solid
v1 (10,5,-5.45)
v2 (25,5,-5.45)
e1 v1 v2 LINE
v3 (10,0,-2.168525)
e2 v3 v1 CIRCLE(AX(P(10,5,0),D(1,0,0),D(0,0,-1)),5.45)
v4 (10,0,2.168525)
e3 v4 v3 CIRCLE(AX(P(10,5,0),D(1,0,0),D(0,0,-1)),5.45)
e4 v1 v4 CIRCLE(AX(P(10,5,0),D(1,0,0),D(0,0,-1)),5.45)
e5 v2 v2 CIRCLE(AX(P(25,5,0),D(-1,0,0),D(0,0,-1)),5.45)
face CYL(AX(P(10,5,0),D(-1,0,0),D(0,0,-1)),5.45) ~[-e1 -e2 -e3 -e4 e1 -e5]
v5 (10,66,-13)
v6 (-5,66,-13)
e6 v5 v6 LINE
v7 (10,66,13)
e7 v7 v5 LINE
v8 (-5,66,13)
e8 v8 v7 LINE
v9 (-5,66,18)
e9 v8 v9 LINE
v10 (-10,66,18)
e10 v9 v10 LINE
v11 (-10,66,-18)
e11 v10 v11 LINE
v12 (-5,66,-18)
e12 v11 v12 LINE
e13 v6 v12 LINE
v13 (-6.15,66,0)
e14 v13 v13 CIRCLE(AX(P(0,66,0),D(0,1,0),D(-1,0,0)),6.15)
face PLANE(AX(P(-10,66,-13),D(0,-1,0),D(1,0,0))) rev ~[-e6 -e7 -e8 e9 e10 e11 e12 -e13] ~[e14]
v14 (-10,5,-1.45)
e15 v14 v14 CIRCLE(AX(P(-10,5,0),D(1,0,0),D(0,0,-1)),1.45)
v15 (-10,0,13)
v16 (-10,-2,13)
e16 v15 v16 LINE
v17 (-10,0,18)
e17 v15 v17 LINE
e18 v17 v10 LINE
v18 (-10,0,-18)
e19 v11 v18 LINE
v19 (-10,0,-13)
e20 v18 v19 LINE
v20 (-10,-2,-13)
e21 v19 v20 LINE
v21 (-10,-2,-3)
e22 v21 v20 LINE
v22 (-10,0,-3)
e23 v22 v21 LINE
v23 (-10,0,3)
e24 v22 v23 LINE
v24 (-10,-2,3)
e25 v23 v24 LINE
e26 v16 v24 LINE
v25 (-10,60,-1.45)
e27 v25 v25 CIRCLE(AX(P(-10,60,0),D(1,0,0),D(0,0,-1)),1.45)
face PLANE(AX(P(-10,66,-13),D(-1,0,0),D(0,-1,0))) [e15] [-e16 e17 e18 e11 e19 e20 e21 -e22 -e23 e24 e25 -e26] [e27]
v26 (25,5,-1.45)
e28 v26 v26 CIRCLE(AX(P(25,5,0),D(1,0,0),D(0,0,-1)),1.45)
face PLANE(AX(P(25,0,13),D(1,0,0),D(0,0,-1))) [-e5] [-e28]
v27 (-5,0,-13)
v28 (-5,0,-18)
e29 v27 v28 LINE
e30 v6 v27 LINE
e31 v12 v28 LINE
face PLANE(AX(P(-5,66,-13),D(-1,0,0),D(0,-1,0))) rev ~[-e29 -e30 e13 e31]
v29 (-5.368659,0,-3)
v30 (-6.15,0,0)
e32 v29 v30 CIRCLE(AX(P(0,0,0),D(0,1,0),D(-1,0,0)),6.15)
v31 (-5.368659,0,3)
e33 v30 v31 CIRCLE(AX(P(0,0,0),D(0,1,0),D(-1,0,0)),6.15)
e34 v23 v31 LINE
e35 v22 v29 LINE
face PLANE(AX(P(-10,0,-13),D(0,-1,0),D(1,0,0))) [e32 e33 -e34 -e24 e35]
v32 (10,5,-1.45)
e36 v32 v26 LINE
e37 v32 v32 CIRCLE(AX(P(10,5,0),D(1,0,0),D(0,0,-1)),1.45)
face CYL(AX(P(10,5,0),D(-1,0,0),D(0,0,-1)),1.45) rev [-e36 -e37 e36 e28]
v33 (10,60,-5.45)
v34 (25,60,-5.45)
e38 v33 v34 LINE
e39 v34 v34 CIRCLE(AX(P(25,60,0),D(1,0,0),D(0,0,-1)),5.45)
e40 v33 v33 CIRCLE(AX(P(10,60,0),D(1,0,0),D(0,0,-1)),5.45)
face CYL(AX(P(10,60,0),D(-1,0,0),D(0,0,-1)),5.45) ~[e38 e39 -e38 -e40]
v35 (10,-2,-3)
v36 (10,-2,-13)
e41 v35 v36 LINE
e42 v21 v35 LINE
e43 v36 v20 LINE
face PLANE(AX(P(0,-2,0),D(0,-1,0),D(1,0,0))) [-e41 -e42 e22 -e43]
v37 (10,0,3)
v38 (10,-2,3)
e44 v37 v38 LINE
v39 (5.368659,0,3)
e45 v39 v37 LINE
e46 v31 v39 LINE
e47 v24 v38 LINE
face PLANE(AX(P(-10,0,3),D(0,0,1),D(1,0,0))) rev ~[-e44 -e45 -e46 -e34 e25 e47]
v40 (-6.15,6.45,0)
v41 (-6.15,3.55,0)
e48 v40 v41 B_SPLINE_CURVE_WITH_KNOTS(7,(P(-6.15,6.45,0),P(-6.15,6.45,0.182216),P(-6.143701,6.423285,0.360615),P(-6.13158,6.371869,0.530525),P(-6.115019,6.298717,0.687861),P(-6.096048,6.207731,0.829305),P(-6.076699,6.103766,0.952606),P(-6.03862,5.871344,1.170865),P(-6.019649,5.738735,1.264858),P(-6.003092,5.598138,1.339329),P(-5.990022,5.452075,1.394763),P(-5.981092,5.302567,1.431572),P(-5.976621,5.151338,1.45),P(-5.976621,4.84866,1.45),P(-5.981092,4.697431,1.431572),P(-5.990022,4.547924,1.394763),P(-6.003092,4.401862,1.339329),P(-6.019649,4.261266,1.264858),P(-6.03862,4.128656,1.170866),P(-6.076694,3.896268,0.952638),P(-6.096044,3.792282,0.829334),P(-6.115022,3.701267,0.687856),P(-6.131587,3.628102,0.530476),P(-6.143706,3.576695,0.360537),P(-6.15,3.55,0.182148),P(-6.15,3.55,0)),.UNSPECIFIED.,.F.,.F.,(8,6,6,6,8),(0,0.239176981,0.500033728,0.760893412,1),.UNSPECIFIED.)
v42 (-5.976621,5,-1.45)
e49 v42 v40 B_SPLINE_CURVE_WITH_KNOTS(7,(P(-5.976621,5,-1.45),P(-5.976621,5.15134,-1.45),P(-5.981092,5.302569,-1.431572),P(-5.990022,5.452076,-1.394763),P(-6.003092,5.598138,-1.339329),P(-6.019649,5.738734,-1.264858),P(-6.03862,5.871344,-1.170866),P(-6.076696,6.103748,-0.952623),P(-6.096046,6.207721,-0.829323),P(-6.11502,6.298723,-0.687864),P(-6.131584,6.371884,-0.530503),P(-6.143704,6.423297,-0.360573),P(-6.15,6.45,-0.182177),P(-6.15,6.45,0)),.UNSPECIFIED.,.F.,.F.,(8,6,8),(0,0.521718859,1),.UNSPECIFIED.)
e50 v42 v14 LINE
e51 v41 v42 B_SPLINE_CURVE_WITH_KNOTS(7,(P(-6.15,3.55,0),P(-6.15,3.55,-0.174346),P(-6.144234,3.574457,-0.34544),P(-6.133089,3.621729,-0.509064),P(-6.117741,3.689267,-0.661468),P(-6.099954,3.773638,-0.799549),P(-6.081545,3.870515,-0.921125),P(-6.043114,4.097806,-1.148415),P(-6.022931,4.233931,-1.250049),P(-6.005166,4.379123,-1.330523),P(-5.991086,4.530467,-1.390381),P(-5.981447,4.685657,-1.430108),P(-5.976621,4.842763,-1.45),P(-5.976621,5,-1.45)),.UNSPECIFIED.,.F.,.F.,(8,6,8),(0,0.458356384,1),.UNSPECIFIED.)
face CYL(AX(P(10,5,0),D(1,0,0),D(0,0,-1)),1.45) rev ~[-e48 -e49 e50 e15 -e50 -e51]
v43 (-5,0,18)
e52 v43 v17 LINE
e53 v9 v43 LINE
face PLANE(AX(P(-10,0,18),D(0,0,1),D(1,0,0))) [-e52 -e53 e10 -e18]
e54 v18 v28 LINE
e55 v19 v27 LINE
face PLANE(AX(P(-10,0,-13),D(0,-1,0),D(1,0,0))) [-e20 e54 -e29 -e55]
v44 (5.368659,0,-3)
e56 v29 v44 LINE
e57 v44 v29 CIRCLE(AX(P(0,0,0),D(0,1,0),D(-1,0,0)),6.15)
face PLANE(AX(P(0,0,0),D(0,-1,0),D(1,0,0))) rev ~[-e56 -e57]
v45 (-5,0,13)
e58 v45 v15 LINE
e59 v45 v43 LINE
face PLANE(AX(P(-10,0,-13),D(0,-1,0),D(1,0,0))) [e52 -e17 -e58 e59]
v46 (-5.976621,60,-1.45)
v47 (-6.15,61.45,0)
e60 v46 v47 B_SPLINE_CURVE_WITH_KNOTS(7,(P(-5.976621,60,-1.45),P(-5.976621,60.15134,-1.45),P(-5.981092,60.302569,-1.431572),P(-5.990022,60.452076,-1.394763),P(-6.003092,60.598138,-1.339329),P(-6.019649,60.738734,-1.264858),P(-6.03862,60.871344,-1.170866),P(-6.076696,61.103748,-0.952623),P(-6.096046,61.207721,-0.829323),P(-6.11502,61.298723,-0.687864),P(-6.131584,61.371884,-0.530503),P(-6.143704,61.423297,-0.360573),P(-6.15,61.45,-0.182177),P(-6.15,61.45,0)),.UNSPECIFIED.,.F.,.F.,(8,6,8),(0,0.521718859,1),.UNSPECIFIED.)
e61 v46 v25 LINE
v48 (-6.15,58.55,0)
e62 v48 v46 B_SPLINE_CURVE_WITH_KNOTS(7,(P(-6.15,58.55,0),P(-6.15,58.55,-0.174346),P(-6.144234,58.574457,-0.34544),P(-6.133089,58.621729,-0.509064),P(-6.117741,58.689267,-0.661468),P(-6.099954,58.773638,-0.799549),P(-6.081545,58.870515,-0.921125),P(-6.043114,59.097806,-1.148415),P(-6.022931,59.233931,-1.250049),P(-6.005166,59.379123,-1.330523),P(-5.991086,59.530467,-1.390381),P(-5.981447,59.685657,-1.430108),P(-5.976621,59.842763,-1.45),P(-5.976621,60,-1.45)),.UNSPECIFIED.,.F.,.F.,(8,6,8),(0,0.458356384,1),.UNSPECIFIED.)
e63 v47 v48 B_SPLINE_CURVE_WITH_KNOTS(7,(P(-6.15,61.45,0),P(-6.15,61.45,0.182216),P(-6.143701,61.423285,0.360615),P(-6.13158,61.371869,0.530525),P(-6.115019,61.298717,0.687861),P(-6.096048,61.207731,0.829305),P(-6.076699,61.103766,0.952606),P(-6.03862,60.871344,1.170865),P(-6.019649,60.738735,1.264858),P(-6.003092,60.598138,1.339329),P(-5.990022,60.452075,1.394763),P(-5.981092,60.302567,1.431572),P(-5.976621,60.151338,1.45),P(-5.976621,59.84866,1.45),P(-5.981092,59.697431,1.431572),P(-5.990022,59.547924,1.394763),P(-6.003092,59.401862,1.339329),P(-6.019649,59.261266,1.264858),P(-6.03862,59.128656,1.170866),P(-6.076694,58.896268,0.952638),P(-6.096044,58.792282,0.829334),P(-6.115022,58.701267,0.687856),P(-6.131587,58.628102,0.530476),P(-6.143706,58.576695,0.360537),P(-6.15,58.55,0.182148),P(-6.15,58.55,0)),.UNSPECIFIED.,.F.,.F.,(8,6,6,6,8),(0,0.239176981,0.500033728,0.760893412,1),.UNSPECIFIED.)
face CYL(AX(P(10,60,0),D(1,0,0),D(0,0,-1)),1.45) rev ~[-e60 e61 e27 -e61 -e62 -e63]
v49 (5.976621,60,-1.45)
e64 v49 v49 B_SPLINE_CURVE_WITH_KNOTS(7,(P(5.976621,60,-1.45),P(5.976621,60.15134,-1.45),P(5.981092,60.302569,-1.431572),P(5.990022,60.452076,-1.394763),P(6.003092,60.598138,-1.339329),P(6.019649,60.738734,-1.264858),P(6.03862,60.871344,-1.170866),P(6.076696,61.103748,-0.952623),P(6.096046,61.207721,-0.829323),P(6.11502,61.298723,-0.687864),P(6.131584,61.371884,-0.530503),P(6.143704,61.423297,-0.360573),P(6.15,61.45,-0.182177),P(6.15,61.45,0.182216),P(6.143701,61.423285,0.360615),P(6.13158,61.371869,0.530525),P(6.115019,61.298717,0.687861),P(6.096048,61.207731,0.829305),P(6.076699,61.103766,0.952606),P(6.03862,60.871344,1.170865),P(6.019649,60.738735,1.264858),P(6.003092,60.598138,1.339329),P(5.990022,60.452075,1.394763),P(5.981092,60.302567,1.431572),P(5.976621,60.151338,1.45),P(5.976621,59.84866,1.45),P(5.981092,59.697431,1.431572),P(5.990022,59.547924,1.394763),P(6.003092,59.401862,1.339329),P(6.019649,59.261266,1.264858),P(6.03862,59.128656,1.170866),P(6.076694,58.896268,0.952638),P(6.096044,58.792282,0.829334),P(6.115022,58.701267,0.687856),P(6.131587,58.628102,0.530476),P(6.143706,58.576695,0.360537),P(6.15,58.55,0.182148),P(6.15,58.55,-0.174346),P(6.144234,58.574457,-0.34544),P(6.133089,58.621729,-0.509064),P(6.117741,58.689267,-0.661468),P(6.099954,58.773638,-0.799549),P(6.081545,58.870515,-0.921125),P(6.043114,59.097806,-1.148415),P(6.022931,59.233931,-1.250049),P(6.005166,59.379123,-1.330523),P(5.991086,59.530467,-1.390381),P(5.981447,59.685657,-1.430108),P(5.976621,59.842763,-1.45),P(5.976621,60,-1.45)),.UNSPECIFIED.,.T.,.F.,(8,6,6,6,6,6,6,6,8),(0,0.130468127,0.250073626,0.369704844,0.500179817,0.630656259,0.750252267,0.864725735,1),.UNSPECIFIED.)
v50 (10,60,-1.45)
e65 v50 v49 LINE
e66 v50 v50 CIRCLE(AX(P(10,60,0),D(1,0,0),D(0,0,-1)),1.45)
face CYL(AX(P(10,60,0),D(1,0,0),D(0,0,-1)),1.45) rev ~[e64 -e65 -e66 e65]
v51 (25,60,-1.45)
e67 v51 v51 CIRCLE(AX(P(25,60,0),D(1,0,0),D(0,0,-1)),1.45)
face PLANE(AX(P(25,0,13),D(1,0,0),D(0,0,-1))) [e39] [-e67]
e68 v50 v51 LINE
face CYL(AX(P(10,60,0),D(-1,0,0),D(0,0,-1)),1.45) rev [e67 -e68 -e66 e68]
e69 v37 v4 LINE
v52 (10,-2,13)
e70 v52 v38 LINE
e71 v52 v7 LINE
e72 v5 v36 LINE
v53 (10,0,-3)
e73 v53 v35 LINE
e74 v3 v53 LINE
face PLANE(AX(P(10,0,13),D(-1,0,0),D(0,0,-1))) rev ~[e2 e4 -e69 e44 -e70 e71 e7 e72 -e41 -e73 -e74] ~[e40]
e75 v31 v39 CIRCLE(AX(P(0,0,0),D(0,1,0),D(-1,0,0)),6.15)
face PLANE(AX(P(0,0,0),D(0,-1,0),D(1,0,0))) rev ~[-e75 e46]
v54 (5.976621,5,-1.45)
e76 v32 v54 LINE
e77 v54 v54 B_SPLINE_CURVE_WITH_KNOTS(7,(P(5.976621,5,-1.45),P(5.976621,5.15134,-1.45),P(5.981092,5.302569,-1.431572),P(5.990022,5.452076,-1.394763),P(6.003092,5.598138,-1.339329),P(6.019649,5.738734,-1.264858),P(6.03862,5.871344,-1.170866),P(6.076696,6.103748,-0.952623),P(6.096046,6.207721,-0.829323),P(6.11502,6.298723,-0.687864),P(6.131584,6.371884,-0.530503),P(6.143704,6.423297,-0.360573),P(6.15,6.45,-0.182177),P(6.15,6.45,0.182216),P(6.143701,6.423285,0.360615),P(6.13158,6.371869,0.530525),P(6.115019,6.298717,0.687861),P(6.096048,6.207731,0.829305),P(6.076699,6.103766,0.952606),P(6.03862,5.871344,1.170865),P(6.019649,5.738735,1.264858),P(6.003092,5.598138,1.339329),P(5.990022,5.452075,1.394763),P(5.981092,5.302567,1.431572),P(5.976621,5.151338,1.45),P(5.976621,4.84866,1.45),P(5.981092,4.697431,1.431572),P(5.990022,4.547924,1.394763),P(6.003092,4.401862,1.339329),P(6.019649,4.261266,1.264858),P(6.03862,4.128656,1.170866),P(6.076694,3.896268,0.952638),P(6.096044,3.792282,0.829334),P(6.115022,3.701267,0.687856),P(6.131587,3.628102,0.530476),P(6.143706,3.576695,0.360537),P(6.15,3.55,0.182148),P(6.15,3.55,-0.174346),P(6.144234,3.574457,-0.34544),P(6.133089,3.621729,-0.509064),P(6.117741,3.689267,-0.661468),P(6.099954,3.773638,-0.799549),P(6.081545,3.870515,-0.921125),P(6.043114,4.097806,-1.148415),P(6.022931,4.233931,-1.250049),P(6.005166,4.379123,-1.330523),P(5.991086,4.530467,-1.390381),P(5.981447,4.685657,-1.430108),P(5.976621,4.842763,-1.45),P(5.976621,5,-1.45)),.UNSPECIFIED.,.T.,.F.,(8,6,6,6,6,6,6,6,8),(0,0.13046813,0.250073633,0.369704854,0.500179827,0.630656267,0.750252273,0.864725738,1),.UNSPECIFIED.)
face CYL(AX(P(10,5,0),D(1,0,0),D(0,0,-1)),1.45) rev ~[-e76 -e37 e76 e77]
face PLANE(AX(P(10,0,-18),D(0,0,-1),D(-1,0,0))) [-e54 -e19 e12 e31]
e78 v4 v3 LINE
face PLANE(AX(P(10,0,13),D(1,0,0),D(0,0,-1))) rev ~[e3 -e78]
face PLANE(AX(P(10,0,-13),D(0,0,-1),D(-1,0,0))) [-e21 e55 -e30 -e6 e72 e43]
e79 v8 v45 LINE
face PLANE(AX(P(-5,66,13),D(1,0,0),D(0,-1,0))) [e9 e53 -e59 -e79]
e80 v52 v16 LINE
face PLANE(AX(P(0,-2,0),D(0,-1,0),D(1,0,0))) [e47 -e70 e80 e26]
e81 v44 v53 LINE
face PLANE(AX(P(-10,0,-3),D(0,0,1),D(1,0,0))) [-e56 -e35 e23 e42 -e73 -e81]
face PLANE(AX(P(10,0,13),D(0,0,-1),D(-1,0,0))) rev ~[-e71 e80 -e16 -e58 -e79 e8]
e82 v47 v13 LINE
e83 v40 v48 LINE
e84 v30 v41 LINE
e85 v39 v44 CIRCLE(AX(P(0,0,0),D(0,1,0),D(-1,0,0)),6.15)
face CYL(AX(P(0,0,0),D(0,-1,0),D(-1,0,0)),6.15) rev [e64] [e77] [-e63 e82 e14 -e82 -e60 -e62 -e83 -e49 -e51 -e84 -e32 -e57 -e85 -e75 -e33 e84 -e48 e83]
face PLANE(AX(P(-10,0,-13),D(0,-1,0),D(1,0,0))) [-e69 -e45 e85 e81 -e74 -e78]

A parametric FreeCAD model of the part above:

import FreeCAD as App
import Part
import Sketcher

V = App.Vector
Q = App.Units.Quantity

doc = App.newDocument("Part")
body = doc.addObject("PartDesign::Body", "Body")

# Sketch on XZ plane
sketch1 = body.newObject("Sketcher::SketchObject", "Sketch")
sketch1.AttachmentSupport = (doc.getObject("XZ_Plane"), [""])
sketch1.MapMode = "FlatFace"
sketch1.addGeometry([
    Part.LineSegment(V(-10, -13, 0), V(-10, 13, 0)),  # 0
    Part.LineSegment(V(-10, 13, 0), V(10, 13, 0)),  # 1
    Part.LineSegment(V(10, 13, 0), V(10, -13, 0)),  # 2
    Part.LineSegment(V(10, -13, 0), V(-10, -13, 0)),  # 3
    Part.Circle(V(0, 0, 0), V(0, 0, 1), 6),  # 4
], False)
sketch1.addConstraint([
    Sketcher.Constraint("Coincident", 0, 2, 1, 1),
    Sketcher.Constraint("Coincident", 1, 2, 2, 1),
    Sketcher.Constraint("Coincident", 2, 2, 3, 1),
    Sketcher.Constraint("Coincident", 3, 2, 0, 1),
    Sketcher.Constraint("Vertical", 0),
    Sketcher.Constraint("Horizontal", 1),
    Sketcher.Constraint("Vertical", 2),
    Sketcher.Constraint("Horizontal", 3),
    Sketcher.Constraint("Coincident", 4, 3, -1, 1),
    Sketcher.Constraint("Symmetric", 0, 2, 2, 2, -1, 1),
    Sketcher.Constraint("Diameter", 4, Q("12.3 mm")),
    Sketcher.Constraint("DistanceX", 0, 2, -1, 1, Q("10 mm")),
    Sketcher.Constraint("DistanceY", -1, 1, 0, 2, Q("13 mm")),
])
pad1 = body.newObject("PartDesign::Pad", "Pad")
pad1.Profile = sketch1
pad1.Length = 66
pad1.Reversed = True

# Sketch on YZ plane
sketch2 = body.newObject("Sketcher::SketchObject", "Sketch001")
sketch2.AttachmentSupport = (doc.getObject("YZ_Plane"), [""])
sketch2.MapMode = "FlatFace"
sketch2.AttachmentOffset = App.Placement(V(0, 0, 10), App.Rotation())
sketch2.addGeometry([
    Part.Circle(V(5, 0, 0), V(0, 0, 1), 1.4),
    Part.Circle(V(60, 0, 0), V(0, 0, 1), 1.4),
], False)
sketch2.addConstraint([
    Sketcher.Constraint("Equal", 0, 1),
    Sketcher.Constraint("PointOnObject", 0, 3, -1),
    Sketcher.Constraint("PointOnObject", 1, 3, -1),
    Sketcher.Constraint("Diameter", 0, Q("2.9 mm")),
    Sketcher.Constraint("DistanceX", -1, 1, 0, 3, Q("5 mm")),
    Sketcher.Constraint("DistanceX", 0, 3, 1, 3, Q("55 mm")),
])
pocket1 = body.newObject("PartDesign::Pocket", "Pocket")
pocket1.Profile = sketch2
pocket1.Length = 55

# Sketch on YZ plane
sketch3 = body.newObject("Sketcher::SketchObject", "Sketch002")
sketch3.AttachmentSupport = (doc.getObject("YZ_Plane"), [""])
sketch3.MapMode = "FlatFace"
sketch3.AttachmentOffset = App.Placement(V(0, 0, 10), App.Rotation())
sketch3.addGeometry([
    Part.Circle(V(5, 0, 0), V(0, 0, 1), 5.5),
    Part.Circle(V(5, 0, 0), V(0, 0, 1), 1.4),
    Part.Circle(V(60, 0, 0), V(0, 0, 1), 5.5),
    Part.Circle(V(60, 0, 0), V(0, 0, 1), 1.4),
], False)
sketch3.addConstraint([
    Sketcher.Constraint("Coincident", 1, 3, 0, 3),
    Sketcher.Constraint("Coincident", 3, 3, 2, 3),
    Sketcher.Constraint("Equal", 0, 2),
    Sketcher.Constraint("Equal", 1, 3),
    Sketcher.Constraint("PointOnObject", 0, 3, -1),
    Sketcher.Constraint("PointOnObject", 2, 3, -1),
    Sketcher.Constraint("Diameter", 0, Q("10.9 mm")),
    Sketcher.Constraint("Diameter", 1, Q("2.9 mm")),
    Sketcher.Constraint("DistanceX", -1, 1, 0, 3, Q("5 mm")),
    Sketcher.Constraint("DistanceX", -1, 1, 2, 3, Q("60 mm")),
])
pad2 = body.newObject("PartDesign::Pad", "Pad001")
pad2.Profile = sketch3
pad2.Length = 15

# Sketch on XY plane
sketch4 = body.newObject("Sketcher::SketchObject", "Sketch003")
sketch4.AttachmentSupport = (doc.getObject("XY_Plane"), [""])
sketch4.MapMode = "FlatFace"
sketch4.AttachmentOffset = App.Placement(V(0, 0, 13), App.Rotation())
sketch4.addGeometry([
    Part.LineSegment(V(-5, 0, 0), V(-5, 66, 0)),
    Part.LineSegment(V(-5, 66, 0), V(-10, 66, 0)),
    Part.LineSegment(V(-10, 66, 0), V(-10, 0, 0)),
    Part.LineSegment(V(-10, 0, 0), V(-5, 0, 0)),
], False)
sketch4.addConstraint([
    Sketcher.Constraint("Coincident", 0, 2, 1, 1),
    Sketcher.Constraint("Coincident", 1, 2, 2, 1),
    Sketcher.Constraint("Coincident", 2, 2, 3, 1),
    Sketcher.Constraint("Coincident", 3, 2, 0, 1),
    Sketcher.Constraint("Vertical", 0),
    Sketcher.Constraint("Horizontal", 1),
    Sketcher.Constraint("Vertical", 2),
    Sketcher.Constraint("Horizontal", 3),
    Sketcher.Constraint("PointOnObject", 2, 2, -1),
    Sketcher.Constraint("DistanceX", 1, 2, 1, 1, Q("5 mm")),
    Sketcher.Constraint("DistanceX", 0, 2, -1, 1, Q("5 mm")),
    Sketcher.Constraint("DistanceY", 0, 1, 0, 2, Q("66 mm")),
])
pad3 = body.newObject("PartDesign::Pad", "Pad002")
pad3.Profile = sketch4
pad3.Length = 5

# Sketch on XY plane
sketch5 = body.newObject("Sketcher::SketchObject", "Sketch004")
sketch5.AttachmentSupport = (doc.getObject("XY_Plane"), [""])
sketch5.MapMode = "FlatFace"
sketch5.AttachmentOffset = App.Placement(V(0, 0, -13), App.Rotation())
sketch5.addGeometry([
    Part.LineSegment(V(-10, 0, 0), V(-10, 66, 0)),
    Part.LineSegment(V(-10, 66, 0), V(-5, 66, 0)),
    Part.LineSegment(V(-5, 66, 0), V(-5, 0, 0)),
    Part.LineSegment(V(-5, 0, 0), V(-10, 0, 0)),
], False)
sketch5.addConstraint([
    Sketcher.Constraint("Coincident", 0, 2, 1, 1),
    Sketcher.Constraint("Coincident", 1, 2, 2, 1),
    Sketcher.Constraint("Coincident", 2, 2, 3, 1),
    Sketcher.Constraint("Coincident", 3, 2, 0, 1),
    Sketcher.Constraint("Vertical", 0),
    Sketcher.Constraint("Horizontal", 1),
    Sketcher.Constraint("Vertical", 2),
    Sketcher.Constraint("Horizontal", 3),
    Sketcher.Constraint("PointOnObject", 2, 2, -1),
    Sketcher.Constraint("DistanceX", 1, 1, 1, 2, Q("5 mm")),
    Sketcher.Constraint("DistanceX", 1, 2, -1, 1, Q("5 mm")),
    Sketcher.Constraint("DistanceY", 0, 1, 0, 2, Q("66 mm")),
])
pad4 = body.newObject("PartDesign::Pad", "Pad003")
pad4.Profile = sketch5
pad4.Length = 5
pad4.Reversed = True

# Sketch on XZ plane
sketch6 = body.newObject("Sketcher::SketchObject", "Sketch005")
sketch6.AttachmentSupport = (doc.getObject("XZ_Plane"), [""])
sketch6.MapMode = "FlatFace"
sketch6.addGeometry([
    Part.LineSegment(V(10, 3, 0), V(10, 13, 0)),  # 0
    Part.LineSegment(V(10, 13, 0), V(-10, 13, 0)),  # 1
    Part.LineSegment(V(-10, 13, 0), V(-10, 3, 0)),  # 2
    Part.LineSegment(V(-10, 3, 0), V(10, 3, 0)),  # 3
    Part.LineSegment(V(10, -13, 0), V(10, -3, 0)),  # 4
    Part.LineSegment(V(10, -3, 0), V(-10, -3, 0)),  # 5
    Part.LineSegment(V(-10, -3, 0), V(-10, -13, 0)),  # 6
    Part.LineSegment(V(-10, -13, 0), V(10, -13, 0)),  # 7
], False)
sketch6.addConstraint([
    Sketcher.Constraint("Coincident", 0, 2, 1, 1),
    Sketcher.Constraint("Coincident", 1, 2, 2, 1),
    Sketcher.Constraint("Coincident", 2, 2, 3, 1),
    Sketcher.Constraint("Coincident", 3, 2, 0, 1),
    Sketcher.Constraint("Coincident", 4, 2, 5, 1),
    Sketcher.Constraint("Coincident", 5, 2, 6, 1),
    Sketcher.Constraint("Coincident", 6, 2, 7, 1),
    Sketcher.Constraint("Coincident", 7, 2, 4, 1),
    Sketcher.Constraint("Vertical", 0),
    Sketcher.Constraint("Horizontal", 1),
    Sketcher.Constraint("Vertical", 2),
    Sketcher.Constraint("Horizontal", 3),
    Sketcher.Constraint("Vertical", 4),
    Sketcher.Constraint("Horizontal", 5),
    Sketcher.Constraint("Vertical", 6),
    Sketcher.Constraint("Horizontal", 7),
    Sketcher.Constraint("Symmetric", 2, 2, 4, 2, -1, 1),
    Sketcher.Constraint("Symmetric", 0, 2, 6, 2, -1, 1),
    Sketcher.Constraint("Vertical", 3, 2, 4, 2),
    Sketcher.Constraint("DistanceY", 0, 1, 0, 2, Q("10 mm")),
    Sketcher.Constraint("DistanceX", -1, 1, 0, 2, Q("10 mm")),
    Sketcher.Constraint("DistanceY", -1, 1, 0, 2, Q("13 mm")),
])
pad5 = body.newObject("PartDesign::Pad", "Pad004")
pad5.Profile = sketch6
pad5.Length = 2

doc.recompute()
